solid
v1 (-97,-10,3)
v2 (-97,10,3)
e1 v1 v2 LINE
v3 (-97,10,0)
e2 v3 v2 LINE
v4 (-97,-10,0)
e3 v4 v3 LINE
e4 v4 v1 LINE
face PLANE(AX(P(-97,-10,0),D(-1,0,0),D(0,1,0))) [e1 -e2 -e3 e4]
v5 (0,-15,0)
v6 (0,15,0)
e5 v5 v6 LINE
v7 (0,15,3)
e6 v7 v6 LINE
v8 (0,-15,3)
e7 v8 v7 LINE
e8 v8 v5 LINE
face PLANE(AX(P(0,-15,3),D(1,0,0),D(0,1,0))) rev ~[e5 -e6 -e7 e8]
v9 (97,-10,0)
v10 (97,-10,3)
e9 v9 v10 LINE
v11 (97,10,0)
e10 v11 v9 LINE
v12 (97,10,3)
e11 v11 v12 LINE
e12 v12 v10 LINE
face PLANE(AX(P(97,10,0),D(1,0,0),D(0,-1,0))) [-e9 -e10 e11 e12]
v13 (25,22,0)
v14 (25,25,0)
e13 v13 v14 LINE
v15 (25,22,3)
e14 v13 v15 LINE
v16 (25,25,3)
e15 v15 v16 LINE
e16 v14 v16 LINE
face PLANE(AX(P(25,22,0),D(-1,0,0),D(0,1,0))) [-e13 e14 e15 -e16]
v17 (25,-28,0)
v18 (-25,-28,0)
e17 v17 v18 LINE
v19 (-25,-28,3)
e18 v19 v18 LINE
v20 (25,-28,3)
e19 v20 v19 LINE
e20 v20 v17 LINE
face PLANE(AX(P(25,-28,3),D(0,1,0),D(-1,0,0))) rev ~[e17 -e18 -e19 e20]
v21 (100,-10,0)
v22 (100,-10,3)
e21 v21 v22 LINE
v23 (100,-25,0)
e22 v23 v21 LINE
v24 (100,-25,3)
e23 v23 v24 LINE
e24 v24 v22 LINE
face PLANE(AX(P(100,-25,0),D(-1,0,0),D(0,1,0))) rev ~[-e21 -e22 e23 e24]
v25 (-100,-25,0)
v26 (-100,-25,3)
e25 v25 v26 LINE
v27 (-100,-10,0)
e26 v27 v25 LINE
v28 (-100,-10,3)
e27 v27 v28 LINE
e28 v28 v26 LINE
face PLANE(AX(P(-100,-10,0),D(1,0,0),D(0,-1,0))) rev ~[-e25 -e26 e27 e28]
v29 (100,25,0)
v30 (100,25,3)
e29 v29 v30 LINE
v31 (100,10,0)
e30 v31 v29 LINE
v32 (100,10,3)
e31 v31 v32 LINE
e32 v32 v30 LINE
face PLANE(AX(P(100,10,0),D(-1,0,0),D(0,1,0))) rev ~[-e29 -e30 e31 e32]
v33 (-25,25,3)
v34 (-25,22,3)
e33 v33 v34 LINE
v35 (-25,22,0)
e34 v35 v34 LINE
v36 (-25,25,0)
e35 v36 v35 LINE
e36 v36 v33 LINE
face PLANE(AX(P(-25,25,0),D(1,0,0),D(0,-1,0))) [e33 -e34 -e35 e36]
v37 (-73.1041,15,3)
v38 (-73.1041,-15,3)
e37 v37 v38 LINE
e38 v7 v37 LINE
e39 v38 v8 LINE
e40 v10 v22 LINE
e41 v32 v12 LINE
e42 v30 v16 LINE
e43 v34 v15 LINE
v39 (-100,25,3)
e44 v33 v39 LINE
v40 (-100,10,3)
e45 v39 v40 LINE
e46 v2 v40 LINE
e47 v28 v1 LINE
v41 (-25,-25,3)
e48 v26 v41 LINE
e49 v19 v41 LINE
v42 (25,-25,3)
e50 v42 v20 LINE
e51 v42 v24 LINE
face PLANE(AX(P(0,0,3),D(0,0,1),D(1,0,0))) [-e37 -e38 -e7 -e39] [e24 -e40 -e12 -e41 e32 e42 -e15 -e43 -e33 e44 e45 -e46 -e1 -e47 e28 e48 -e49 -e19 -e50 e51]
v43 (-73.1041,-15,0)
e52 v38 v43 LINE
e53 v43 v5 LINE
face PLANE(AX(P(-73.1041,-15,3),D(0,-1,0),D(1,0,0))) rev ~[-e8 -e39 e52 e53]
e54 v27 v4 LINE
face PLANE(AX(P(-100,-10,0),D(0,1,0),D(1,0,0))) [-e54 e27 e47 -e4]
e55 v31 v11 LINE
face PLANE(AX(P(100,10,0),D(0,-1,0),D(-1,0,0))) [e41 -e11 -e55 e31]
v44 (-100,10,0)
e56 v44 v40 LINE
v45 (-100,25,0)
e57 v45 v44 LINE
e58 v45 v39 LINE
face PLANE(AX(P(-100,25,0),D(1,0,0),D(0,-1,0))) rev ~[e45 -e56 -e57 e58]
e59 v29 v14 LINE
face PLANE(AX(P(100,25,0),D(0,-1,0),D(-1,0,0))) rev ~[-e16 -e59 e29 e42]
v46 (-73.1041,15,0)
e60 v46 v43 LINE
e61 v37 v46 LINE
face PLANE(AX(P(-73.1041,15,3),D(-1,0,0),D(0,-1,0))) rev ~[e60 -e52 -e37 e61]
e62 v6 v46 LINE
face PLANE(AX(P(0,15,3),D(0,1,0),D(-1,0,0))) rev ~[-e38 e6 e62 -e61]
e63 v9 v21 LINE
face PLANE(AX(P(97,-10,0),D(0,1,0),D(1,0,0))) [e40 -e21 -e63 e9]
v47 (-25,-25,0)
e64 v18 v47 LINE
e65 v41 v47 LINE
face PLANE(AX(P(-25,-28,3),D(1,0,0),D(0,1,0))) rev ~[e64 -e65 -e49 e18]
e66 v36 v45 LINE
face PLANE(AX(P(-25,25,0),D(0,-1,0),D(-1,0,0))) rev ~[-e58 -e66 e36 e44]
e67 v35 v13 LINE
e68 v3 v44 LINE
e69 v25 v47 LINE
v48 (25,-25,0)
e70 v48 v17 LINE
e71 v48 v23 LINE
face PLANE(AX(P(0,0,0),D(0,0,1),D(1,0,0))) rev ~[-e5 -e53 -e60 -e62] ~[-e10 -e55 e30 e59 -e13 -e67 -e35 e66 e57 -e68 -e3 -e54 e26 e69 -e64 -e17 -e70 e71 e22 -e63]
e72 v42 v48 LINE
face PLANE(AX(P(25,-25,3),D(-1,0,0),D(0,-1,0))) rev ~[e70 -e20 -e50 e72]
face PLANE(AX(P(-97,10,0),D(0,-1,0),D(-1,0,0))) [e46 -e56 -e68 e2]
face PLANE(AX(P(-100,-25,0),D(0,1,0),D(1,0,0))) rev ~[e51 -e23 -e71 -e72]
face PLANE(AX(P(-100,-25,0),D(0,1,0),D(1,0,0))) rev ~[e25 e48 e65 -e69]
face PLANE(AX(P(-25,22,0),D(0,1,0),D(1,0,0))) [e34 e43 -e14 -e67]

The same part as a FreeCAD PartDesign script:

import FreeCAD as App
import Part
import Sketcher

V = App.Vector

doc = App.newDocument("Part")
params = doc.addObject("Spreadsheet::Sheet", "Params")
for row, (alias, value) in enumerate([
    ("sketch1_width", "200 mm"),
    ("sketch1_width2", "3 mm"),
    ("sketch1_width3", "50 mm"),
    ("sketch1_height", "20 mm"),
    ("pad1_length", "3 mm"),
    ("sketch2_width", "50 mm"),
    ("sketch2_height", "3 mm"),
    ("pad2_length", "3 mm"),
    ("sketch3_height", "30 mm"),
], start=1):
    params.set(f"A{row}", alias)
    params.set(f"B{row}", "=" + value)
    params.setAlias(f"B{row}", alias)

body = doc.addObject("PartDesign::Body", "Body")

sketch1 = body.newObject("Sketcher::SketchObject", "Sketch")
sketch1.AttachmentSupport = (doc.getObject("XY_Plane"), [""])
sketch1.MapMode = "FlatFace"
sketch1.addGeometry([
    Part.LineSegment(V(-100, -10, 0), V(-100, -25, 0)),
    Part.LineSegment(V(-100, -25, 0), V(100, -25, 0)),
    Part.LineSegment(V(100, -25, 0), V(100, -10, 0)),
    Part.LineSegment(V(100, -10, 0), V(97, -10, 0)),
    Part.LineSegment(V(97, -10, 0), V(97, 10, 0)),
    Part.LineSegment(V(97, 10, 0), V(100, 10, 0)),
    Part.LineSegment(V(100, 10, 0), V(100, 25, 0)),
    Part.LineSegment(V(100, 25, 0), V(25, 25, 0)),
    Part.LineSegment(V(25, 25, 0), V(25, 22, 0)),
    Part.LineSegment(V(25, 22, 0), V(-25, 22, 0)),
    Part.LineSegment(V(-25, 22, 0), V(-25, 25, 0)),
    Part.LineSegment(V(-25, 25, 0), V(-100, 25, 0)),
    Part.LineSegment(V(-100, 25, 0), V(-100, 10, 0)),
    Part.LineSegment(V(-100, 10, 0), V(-97, 10, 0)),
    Part.LineSegment(V(-97, 10, 0), V(-97, -10, 0)),
    Part.LineSegment(V(-97, -10, 0), V(-100, -10, 0)),
], False)
sketch1.addConstraint([
    Sketcher.Constraint("Coincident", 0, 2, 1, 1),
    Sketcher.Constraint("Coincident", 1, 2, 2, 1),
    Sketcher.Constraint("Coincident", 2, 2, 3, 1),
    Sketcher.Constraint("Coincident", 3, 2, 4, 1),
    Sketcher.Constraint("Coincident", 4, 2, 5, 1),
    Sketcher.Constraint("Coincident", 5, 2, 6, 1),
    Sketcher.Constraint("Coincident", 6, 2, 7, 1),
    Sketcher.Constraint("Coincident", 7, 2, 8, 1),
    Sketcher.Constraint("Coincident", 8, 2, 9, 1),
    Sketcher.Constraint("Coincident", 9, 2, 10, 1),
    Sketcher.Constraint("Coincident", 10, 2, 11, 1),
    Sketcher.Constraint("Coincident", 11, 2, 12, 1),
    Sketcher.Constraint("Coincident", 12, 2, 13, 1),
    Sketcher.Constraint("Coincident", 13, 2, 14, 1),
    Sketcher.Constraint("Coincident", 14, 2, 15, 1),
    Sketcher.Constraint("Coincident", 15, 2, 0, 1),
    Sketcher.Constraint("Vertical", 0),
    Sketcher.Constraint("Horizontal", 1),
    Sketcher.Constraint("Vertical", 2),
    Sketcher.Constraint("Horizontal", 3),
    Sketcher.Constraint("Vertical", 4),
    Sketcher.Constraint("Horizontal", 5),
    Sketcher.Constraint("Vertical", 6),
    Sketcher.Constraint("Horizontal", 7),
    Sketcher.Constraint("Vertical", 8),
    Sketcher.Constraint("Horizontal", 9),
    Sketcher.Constraint("Vertical", 10),
    Sketcher.Constraint("Horizontal", 11),
    Sketcher.Constraint("Vertical", 12),
    Sketcher.Constraint("Horizontal", 13),
    Sketcher.Constraint("Vertical", 14),
    Sketcher.Constraint("Horizontal", 15),
    Sketcher.Constraint("Symmetric", 0, 2, 6, 2, -1, 1),
    Sketcher.Constraint("Symmetric", 1, 2, 11, 2, -1, 1),
    Sketcher.Constraint("Symmetric", 3, 2, 13, 2, -1, 1),
    Sketcher.Constraint("Symmetric", 5, 2, 12, 2, -2),
    Sketcher.Constraint("Horizontal", 3, 2, 14, 2),
    Sketcher.Constraint("Equal", 7, 11),
    Sketcher.Constraint("Equal", 15, 8),
    Sketcher.Constraint("DistanceX", 1, 1, 1, 2, 200.0),
    Sketcher.Constraint("DistanceX", 3, 2, 3, 1, 3.0),
    Sketcher.Constraint("DistanceX", 9, 2, 9, 1, 50.0),
    Sketcher.Constraint("DistanceY", 4, 1, 4, 2, 20.0),
    Sketcher.Constraint("DistanceY", 1, 2, 6, 2, 50.0),
])
sketch1.setExpression("Constraints[39]", "Params.sketch1_width")
sketch1.setExpression("Constraints[40]", "Params.sketch1_width2")
sketch1.setExpression("Constraints[41]", "Params.sketch1_width3")
sketch1.setExpression("Constraints[42]", "Params.sketch1_height")
pad1 = body.newObject("PartDesign::Pad", "Pad")
pad1.Profile = sketch1
pad1.setExpression("Length", "Params.pad1_length")

sketch2 = body.newObject("Sketcher::SketchObject", "Sketch001")
sketch2.AttachmentSupport = (doc.getObject("XY_Plane"), [""])
sketch2.MapMode = "FlatFace"
sketch2.AttachmentOffset = App.Placement(V(0, 0, 3), App.Rotation())
sketch2.addGeometry([
    Part.LineSegment(V(25, -25, 0), V(-25, -25, 0)),
    Part.LineSegment(V(-25, -25, 0), V(-25, -28, 0)),
    Part.LineSegment(V(-25, -28, 0), V(25, -28, 0)),
    Part.LineSegment(V(25, -28, 0), V(25, -25, 0)),
], False)
sketch2.addConstraint([
    Sketcher.Constraint("Coincident", 0, 2, 1, 1),
    Sketcher.Constraint("Coincident", 1, 2, 2, 1),
    Sketcher.Constraint("Coincident", 2, 2, 3, 1),
    Sketcher.Constraint("Coincident", 3, 2, 0, 1),
    Sketcher.Constraint("Horizontal", 0),
    Sketcher.Constraint("Vertical", 1),
    Sketcher.Constraint("Horizontal", 2),
    Sketcher.Constraint("Vertical", 3),
    Sketcher.Constraint("DistanceX", 0, 2, 0, 1, 50.0),
    Sketcher.Constraint("DistanceY", 1, 2, 1, 1, 3.0),
    Sketcher.Constraint("DistanceX", 0, 2, -1, 1, 25.0),
    Sketcher.Constraint("DistanceY", 0, 2, -1, 1, 25.0),
])
sketch2.setExpression("Constraints[8]", "Params.sketch2_width")
sketch2.setExpression("Constraints[9]", "Params.sketch2_height")
pad2 = body.newObject("PartDesign::Pad", "Pad001")
pad2.Profile = sketch2
pad2.setExpression("Length", "Params.pad2_length")
pad2.Reversed = True

sketch3 = body.newObject("Sketcher::SketchObject", "Sketch002")
sketch3.AttachmentSupport = (doc.getObject("XY_Plane"), [""])
sketch3.MapMode = "FlatFace"
sketch3.AttachmentOffset = App.Placement(V(0, 0, 3), App.Rotation())
sketch3.addGeometry([
    Part.LineSegment(V(0, -15, 0), V(0, 15, 0)),
    Part.LineSegment(V(0, 15, 0), V(-73.1041, 15, 0)),
    Part.LineSegment(V(-73.1041, 15, 0), V(-73.1041, -15, 0)),
    Part.LineSegment(V(-73.1041, -15, 0), V(0, -15, 0)),
], False)
sketch3.addConstraint([
    Sketcher.Constraint("Coincident", 0, 2, 1, 1),
    Sketcher.Constraint("Coincident", 1, 2, 2, 1),
    Sketcher.Constraint("Coincident", 2, 2, 3, 1),
    Sketcher.Constraint("Coincident", 3, 2, 0, 1),
    Sketcher.Constraint("Vertical", 0),
    Sketcher.Constraint("Horizontal", 1),
    Sketcher.Constraint("Vertical", 2),
    Sketcher.Constraint("Horizontal", 3),
    Sketcher.Constraint("Symmetric", 0, 2, 3, 2, -1, 1),
    Sketcher.Constraint("DistanceY", 0, 1, 0, 2, 30.0),
    Sketcher.Constraint("DistanceX", 1, 2, 1, 1, 73.104),
])
sketch3.setExpression("Constraints[9]", "Params.sketch3_height")
pocket1 = body.newObject("PartDesign::Pocket", "Pocket")
pocket1.Profile = sketch3
pocket1.Type = "ThroughAll"

doc.recompute()
